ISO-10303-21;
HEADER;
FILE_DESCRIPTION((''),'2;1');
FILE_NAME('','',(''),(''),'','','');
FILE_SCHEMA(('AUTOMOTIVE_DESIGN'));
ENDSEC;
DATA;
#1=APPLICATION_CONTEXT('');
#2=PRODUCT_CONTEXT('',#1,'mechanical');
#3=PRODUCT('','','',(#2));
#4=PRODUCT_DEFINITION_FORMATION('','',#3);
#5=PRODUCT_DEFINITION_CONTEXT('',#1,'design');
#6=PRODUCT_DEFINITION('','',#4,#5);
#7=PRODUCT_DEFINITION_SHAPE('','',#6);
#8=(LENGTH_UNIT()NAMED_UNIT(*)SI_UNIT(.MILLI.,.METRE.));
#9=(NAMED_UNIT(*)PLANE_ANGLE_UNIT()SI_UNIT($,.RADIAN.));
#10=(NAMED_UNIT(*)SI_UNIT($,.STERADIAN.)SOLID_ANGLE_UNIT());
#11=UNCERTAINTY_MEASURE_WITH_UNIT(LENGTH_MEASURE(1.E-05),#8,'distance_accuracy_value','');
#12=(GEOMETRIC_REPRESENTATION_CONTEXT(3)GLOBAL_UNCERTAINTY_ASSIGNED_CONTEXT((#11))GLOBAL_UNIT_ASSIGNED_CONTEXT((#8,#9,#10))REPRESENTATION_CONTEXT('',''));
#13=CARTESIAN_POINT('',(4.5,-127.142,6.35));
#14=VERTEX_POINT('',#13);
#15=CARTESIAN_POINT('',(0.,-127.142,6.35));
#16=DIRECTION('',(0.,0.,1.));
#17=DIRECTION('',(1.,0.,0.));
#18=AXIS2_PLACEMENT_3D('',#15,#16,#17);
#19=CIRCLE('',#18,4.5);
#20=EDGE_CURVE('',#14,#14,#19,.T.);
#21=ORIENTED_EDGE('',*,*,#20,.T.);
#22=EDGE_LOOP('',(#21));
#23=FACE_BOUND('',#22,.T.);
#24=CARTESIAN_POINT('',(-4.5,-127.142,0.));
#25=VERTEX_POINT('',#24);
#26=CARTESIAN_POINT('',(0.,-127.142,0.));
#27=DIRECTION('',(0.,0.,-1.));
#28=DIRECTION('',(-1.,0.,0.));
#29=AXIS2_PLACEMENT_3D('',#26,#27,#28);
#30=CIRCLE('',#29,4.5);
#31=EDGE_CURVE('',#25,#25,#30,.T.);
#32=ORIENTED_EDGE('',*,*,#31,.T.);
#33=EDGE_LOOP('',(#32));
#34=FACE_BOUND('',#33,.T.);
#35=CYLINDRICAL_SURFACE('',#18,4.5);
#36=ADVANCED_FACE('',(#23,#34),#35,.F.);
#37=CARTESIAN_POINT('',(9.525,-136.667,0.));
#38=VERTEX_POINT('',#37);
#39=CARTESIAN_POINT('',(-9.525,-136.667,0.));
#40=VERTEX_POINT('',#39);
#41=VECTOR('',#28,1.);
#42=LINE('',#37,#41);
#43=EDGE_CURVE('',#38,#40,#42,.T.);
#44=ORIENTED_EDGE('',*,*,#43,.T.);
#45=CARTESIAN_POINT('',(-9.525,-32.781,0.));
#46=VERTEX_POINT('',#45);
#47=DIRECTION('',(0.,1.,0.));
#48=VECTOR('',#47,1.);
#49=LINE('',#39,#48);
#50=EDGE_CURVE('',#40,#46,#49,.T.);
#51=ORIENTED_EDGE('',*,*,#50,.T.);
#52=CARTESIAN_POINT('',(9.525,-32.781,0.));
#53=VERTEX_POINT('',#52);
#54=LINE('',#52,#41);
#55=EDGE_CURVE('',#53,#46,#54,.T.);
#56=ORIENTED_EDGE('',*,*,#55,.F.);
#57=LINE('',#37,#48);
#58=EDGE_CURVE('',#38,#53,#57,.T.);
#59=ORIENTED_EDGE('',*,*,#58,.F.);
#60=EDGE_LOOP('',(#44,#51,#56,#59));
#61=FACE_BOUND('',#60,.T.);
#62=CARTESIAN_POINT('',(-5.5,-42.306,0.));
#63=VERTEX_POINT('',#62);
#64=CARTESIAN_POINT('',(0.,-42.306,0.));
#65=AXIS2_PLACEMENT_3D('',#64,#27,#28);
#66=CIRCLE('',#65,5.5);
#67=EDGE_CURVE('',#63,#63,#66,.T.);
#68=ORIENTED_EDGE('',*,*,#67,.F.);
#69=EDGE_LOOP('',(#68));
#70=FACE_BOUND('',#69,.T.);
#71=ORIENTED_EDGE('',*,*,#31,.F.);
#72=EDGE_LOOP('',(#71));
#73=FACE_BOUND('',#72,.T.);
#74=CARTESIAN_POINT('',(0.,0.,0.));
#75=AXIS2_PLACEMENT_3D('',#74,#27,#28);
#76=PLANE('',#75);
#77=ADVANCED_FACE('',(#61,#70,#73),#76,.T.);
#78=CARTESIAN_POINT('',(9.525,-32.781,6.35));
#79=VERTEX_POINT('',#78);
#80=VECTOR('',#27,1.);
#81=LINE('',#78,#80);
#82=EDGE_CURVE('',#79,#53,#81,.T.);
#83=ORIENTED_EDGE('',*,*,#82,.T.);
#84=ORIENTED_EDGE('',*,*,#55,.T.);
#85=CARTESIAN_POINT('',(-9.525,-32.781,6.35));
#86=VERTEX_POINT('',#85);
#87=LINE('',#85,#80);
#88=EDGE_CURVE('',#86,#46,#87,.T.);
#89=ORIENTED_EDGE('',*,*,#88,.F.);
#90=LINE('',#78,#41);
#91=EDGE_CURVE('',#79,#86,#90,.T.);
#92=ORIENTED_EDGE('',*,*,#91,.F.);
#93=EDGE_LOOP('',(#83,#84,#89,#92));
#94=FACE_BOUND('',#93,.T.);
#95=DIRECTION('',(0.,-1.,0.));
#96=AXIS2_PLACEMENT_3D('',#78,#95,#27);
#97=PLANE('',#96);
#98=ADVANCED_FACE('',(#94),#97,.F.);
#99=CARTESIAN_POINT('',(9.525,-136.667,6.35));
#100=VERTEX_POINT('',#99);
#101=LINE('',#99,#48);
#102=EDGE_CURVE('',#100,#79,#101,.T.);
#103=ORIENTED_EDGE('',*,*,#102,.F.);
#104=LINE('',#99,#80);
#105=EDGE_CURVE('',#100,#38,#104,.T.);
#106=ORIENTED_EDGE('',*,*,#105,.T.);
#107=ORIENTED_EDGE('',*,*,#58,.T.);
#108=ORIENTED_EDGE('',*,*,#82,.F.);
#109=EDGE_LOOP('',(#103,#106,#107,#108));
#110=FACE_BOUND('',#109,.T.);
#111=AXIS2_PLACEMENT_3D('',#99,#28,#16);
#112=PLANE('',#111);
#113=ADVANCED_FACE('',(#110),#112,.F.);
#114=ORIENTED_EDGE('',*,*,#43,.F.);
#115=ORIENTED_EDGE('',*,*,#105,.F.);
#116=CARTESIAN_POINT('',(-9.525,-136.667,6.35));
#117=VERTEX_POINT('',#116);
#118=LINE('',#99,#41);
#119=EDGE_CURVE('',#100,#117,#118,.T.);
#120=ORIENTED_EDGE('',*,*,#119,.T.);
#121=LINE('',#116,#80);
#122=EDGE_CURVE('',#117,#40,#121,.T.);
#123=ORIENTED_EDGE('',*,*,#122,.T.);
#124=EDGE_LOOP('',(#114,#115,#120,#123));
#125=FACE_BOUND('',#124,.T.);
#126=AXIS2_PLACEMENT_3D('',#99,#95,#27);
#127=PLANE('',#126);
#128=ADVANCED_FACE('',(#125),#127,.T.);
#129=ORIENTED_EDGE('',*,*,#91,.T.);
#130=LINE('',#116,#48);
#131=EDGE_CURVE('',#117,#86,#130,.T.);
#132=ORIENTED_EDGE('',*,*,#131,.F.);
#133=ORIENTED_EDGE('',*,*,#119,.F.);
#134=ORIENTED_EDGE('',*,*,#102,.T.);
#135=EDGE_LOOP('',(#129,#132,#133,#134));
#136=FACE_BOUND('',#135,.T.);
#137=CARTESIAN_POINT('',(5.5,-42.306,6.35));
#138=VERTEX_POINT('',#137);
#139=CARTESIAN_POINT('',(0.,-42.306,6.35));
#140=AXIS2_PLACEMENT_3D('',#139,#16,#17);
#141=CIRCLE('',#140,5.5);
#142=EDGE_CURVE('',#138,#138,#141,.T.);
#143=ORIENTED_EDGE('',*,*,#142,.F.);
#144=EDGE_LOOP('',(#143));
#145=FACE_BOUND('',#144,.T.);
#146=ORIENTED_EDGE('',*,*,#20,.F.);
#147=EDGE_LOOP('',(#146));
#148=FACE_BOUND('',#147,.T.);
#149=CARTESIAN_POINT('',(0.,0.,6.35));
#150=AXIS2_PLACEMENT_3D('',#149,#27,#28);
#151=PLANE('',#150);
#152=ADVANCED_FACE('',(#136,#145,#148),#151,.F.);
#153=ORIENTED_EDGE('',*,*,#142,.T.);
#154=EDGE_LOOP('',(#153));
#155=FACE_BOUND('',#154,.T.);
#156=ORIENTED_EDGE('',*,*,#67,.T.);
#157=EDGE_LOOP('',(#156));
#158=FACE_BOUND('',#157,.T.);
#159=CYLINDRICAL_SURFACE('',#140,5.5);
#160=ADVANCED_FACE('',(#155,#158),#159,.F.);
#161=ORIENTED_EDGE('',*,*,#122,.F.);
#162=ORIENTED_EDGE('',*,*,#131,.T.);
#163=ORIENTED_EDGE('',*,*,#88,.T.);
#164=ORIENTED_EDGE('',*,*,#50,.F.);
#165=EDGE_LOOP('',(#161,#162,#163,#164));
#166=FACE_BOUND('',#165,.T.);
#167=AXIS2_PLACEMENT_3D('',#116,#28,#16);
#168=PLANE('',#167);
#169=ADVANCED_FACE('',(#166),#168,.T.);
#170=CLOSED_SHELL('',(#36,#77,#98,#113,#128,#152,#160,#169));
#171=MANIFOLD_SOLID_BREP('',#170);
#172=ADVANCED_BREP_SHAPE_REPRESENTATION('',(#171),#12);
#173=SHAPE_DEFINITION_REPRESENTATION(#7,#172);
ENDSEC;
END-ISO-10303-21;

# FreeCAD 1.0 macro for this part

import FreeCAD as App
import Part
import Sketcher
from FreeCAD import Vector
Q = App.Units.Quantity


def add_polygon(sketch, points):
    """Adds a closed chain of lines whose ends are joined by coincident constraints."""
    first, n = sketch.GeometryCount, len(points)
    for a, b in zip(points, points[1:] + points[:1]):
        sketch.addGeometry(Part.LineSegment(App.Vector(*a, 0), App.Vector(*b, 0)), False)
    for i in range(n):
        sketch.addConstraint(Sketcher.Constraint("Coincident", first + i, 2, first + (i + 1) % n, 1))

doc = App.newDocument("Part")
body = doc.addObject("PartDesign::Body", "Body")

sketch1 = body.newObject("Sketcher::SketchObject", "Sketch")
sketch1.AttachmentSupport = (doc.getObject("XY_Plane"), [""])
sketch1.MapMode = "FlatFace"
add_polygon(sketch1, [(-10, -33), (-10, -137), (10, -137), (10, -33)])
sketch1.addConstraint([
    Sketcher.Constraint("Vertical", 0),
    Sketcher.Constraint("Horizontal", 1),
    Sketcher.Constraint("Vertical", 2),
    Sketcher.Constraint("Horizontal", 3),
    Sketcher.Constraint("DistanceX", 1, 1, 1, 2, Q("0.75 in")),
    Sketcher.Constraint("DistanceY", 0, 2, 0, 1, Q("4.09 in")),
    Sketcher.Constraint("DistanceX", 0, 2, -1, 1, Q("0.375 in")),
    Sketcher.Constraint("DistanceY", 0, 2, -1, 1, 136.667),
])
pad1 = body.newObject("PartDesign::Pad", "Pad")
pad1.Profile = sketch1
pad1.Length = Q("0.25 in")

sketch2 = body.newObject("Sketcher::SketchObject", "Sketch001")
sketch2.AttachmentSupport = (doc.getObject("XY_Plane"), [""])
sketch2.MapMode = "FlatFace"
sketch2.AttachmentOffset = App.Placement(Vector(0, 0, 0.25 * 25.4), App.Rotation())
sketch2.addGeometry(Part.Circle(Vector(0, -127.1, 0), Vector(0, 0, 1), 4.5), False)
sketch2.addConstraint([
    Sketcher.Constraint("PointOnObject", 0, 3, -2),
    Sketcher.Constraint("Diameter", 0, 9.0),
    Sketcher.Constraint("DistanceY", 0, 3, -1, 1, 127.142),
])
doc.recompute()
hole = body.newObject("PartDesign::Hole", "Hole")
hole.Profile = sketch2
hole.ThreadType = "None"
hole.Diameter = 9
hole.DepthType = "Dimension"
hole.Depth = Q("0.83 in")
hole.DrillPoint = "Angled"
hole.DrillPointAngle = 118

sketch3 = body.newObject("Sketcher::SketchObject", "Sketch002")
sketch3.AttachmentSupport = (doc.getObject("XY_Plane"), [""])
sketch3.MapMode = "FlatFace"
sketch3.AttachmentOffset = App.Placement(Vector(0, 0, 0.25 * 25.4), App.Rotation())
sketch3.addGeometry(Part.Circle(Vector(0, -42, 0), Vector(0, 0, 1), 6), False)
sketch3.addConstraint([
    Sketcher.Constraint("PointOnObject", 0, 3, -2),
    Sketcher.Constraint("Diameter", 0, 11.0),
    Sketcher.Constraint("DistanceY", 0, 3, -1, 1, 42.306),
])
doc.recompute()
hole2 = body.newObject("PartDesign::Hole", "Hole001")
hole2.Profile = sketch3
hole2.ThreadType = "None"
hole2.Diameter = 11
hole2.DepthType = "Dimension"
hole2.Depth = Q("0.83 in")
hole2.DrillPoint = "Angled"
hole2.DrillPointAngle = 118

doc.recompute()
